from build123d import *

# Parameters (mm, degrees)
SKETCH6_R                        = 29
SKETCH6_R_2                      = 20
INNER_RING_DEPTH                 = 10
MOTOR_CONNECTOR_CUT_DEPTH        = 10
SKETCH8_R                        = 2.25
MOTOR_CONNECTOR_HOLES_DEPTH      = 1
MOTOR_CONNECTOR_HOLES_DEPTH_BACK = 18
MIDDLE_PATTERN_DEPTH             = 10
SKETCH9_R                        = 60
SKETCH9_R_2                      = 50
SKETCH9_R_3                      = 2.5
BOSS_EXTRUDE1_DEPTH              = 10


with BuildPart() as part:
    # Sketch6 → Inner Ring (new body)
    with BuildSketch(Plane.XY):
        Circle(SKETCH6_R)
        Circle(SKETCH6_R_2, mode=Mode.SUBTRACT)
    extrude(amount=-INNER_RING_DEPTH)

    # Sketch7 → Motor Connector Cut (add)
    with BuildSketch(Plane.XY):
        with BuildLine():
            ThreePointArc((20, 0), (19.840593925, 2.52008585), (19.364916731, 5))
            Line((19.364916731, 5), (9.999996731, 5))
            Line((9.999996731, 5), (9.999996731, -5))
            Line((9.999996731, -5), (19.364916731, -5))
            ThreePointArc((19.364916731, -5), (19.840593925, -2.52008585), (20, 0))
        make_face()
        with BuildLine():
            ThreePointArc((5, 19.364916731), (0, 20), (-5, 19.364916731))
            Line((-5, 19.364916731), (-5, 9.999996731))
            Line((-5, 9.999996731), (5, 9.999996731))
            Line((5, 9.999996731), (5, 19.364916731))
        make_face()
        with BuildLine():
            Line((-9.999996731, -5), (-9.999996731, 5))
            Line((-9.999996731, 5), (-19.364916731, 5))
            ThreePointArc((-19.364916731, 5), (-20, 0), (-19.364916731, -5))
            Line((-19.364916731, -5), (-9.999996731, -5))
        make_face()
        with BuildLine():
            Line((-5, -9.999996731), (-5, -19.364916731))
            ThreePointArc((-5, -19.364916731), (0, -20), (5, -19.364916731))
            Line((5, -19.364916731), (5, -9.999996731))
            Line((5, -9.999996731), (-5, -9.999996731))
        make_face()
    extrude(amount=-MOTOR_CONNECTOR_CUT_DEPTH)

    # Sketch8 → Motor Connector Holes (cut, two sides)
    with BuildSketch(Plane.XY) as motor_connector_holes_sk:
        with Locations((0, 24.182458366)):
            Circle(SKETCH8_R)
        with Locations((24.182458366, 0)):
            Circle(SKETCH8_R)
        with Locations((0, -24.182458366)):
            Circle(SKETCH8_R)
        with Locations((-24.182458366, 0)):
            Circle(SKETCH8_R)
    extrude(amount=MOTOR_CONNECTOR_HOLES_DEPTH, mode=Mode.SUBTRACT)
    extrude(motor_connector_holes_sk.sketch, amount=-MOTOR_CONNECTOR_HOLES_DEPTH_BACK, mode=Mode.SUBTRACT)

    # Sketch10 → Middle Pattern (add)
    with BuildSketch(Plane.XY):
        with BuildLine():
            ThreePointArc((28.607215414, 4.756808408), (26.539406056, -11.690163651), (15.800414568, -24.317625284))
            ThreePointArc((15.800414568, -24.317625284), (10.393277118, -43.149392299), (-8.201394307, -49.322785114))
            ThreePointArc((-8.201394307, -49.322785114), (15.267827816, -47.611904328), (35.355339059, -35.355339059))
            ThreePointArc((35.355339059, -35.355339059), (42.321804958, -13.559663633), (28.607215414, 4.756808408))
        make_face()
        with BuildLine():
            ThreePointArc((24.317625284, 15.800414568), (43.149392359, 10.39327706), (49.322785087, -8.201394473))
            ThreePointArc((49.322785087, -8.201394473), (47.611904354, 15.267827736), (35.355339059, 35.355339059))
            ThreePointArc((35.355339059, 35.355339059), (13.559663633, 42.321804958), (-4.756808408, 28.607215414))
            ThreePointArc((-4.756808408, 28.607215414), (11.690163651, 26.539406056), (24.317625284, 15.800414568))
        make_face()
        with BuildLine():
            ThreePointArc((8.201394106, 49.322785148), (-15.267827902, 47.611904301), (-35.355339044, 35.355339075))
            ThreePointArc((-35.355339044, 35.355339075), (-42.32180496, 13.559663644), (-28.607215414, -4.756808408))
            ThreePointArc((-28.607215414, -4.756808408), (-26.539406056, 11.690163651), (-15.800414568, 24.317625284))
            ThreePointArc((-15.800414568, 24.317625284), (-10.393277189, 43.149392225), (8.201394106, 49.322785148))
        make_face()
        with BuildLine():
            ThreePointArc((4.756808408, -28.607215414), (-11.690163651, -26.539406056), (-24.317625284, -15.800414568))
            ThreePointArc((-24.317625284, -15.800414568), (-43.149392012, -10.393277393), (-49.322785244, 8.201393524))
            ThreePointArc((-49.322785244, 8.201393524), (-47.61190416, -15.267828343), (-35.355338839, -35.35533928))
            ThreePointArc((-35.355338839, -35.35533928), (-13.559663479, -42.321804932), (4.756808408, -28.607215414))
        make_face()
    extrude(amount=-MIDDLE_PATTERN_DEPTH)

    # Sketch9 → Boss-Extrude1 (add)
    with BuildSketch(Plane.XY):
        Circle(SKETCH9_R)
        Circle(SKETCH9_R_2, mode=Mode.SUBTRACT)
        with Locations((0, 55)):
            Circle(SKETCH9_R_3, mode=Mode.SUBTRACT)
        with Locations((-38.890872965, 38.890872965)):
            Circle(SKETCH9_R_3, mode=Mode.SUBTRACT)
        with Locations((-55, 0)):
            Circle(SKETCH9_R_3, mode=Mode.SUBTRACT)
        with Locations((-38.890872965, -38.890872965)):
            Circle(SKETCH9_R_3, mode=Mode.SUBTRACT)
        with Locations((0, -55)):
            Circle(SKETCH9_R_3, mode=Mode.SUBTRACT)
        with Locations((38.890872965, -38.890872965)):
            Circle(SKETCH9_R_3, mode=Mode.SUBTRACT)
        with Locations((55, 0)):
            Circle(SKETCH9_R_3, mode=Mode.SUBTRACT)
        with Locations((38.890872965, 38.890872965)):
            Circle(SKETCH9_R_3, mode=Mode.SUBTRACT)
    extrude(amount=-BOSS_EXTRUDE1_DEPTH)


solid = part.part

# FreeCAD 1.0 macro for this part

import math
import FreeCAD as App
import Part
import Sketcher

doc = App.newDocument("Part")
body = doc.addObject("PartDesign::Body", "Body")

# Sketch on XY plane
sketch1 = doc.addObject("Sketcher::SketchObject", "Sketch")
body.addObject(sketch1)
sketch1.AttachmentSupport = (doc.XY_Plane, [""])
sketch1.MapMode = "FlatFace"
sketch1.addGeometry([
    Part.Circle(App.Vector(0, 0, 0), App.Vector(0, 0, 1), 29),
    Part.Circle(App.Vector(0, 0, 0), App.Vector(0, 0, 1), 20),
], False)
sketch1.addConstraint([
    Sketcher.Constraint("Coincident", 0, 3, -1, 1),
    Sketcher.Constraint("Coincident", 1, 3, -1, 1),
    Sketcher.Constraint("Diameter", 0, 58.0),
    Sketcher.Constraint("Diameter", 1, 40.0),
])
pad1 = doc.addObject("PartDesign::Pad", "Pad")
body.addObject(pad1)
pad1.Profile = sketch1
pad1.Length = 10
pad1.Reversed = True

# Sketch on XY plane
sketch2 = doc.addObject("Sketcher::SketchObject", "Sketch001")
body.addObject(sketch2)
sketch2.AttachmentSupport = (doc.XY_Plane, [""])
sketch2.MapMode = "FlatFace"
sketch2.addGeometry([
    Part.ArcOfCircle(Part.Circle(App.Vector(0, 0, 0), App.Vector(0, 0, 1), 20), math.radians(0), math.radians(14.48)),  # 0
    Part.LineSegment(App.Vector(19, 5, 0), App.Vector(10, 5, 0)),  # 1
    Part.LineSegment(App.Vector(10, 5, 0), App.Vector(10, -5, 0)),  # 2
    Part.LineSegment(App.Vector(10, -5, 0), App.Vector(19, -5, 0)),  # 3
    Part.ArcOfCircle(Part.Circle(App.Vector(0, 0, 0), App.Vector(0, 0, 1), 20), math.radians(-14.48), math.radians(0)),  # 4
    Part.ArcOfCircle(Part.Circle(App.Vector(0, 0, 0), App.Vector(0, 0, 1), 20), math.radians(76), math.radians(104)),  # 5
    Part.LineSegment(App.Vector(-5, 19, 0), App.Vector(-5, 10, 0)),  # 6
    Part.LineSegment(App.Vector(-5, 10, 0), App.Vector(5, 10, 0)),  # 7
    Part.LineSegment(App.Vector(5, 10, 0), App.Vector(5, 19, 0)),  # 8
    Part.LineSegment(App.Vector(-10, -5, 0), App.Vector(-10, 5, 0)),  # 9
    Part.LineSegment(App.Vector(-10, 5, 0), App.Vector(-19, 5, 0)),  # 10
    Part.ArcOfCircle(Part.Circle(App.Vector(0, 0, 0), App.Vector(0, 0, 1), 20), math.radians(166), math.radians(194)),  # 11
    Part.LineSegment(App.Vector(-19, -5, 0), App.Vector(-10, -5, 0)),  # 12
    Part.LineSegment(App.Vector(-5, -10, 0), App.Vector(-5, -19, 0)),  # 13
    Part.ArcOfCircle(Part.Circle(App.Vector(0, 0, 0), App.Vector(0, 0, 1), 20), math.radians(-104), math.radians(-76)),  # 14
    Part.LineSegment(App.Vector(5, -19, 0), App.Vector(5, -10, 0)),  # 15
    Part.LineSegment(App.Vector(5, -10, 0), App.Vector(-5, -10, 0)),  # 16
], False)
sketch2.addConstraint([
    Sketcher.Constraint("Coincident", 0, 2, 1, 1),
    Sketcher.Constraint("Coincident", 1, 2, 2, 1),
    Sketcher.Constraint("Coincident", 2, 2, 3, 1),
    Sketcher.Constraint("Coincident", 3, 2, 4, 1),
    Sketcher.Constraint("Tangent", 4, 2, 0, 1),
    Sketcher.Constraint("Coincident", 5, 2, 6, 1),
    Sketcher.Constraint("Coincident", 6, 2, 7, 1),
    Sketcher.Constraint("Coincident", 7, 2, 8, 1),
    Sketcher.Constraint("Coincident", 8, 2, 5, 1),
    Sketcher.Constraint("Coincident", 9, 2, 10, 1),
    Sketcher.Constraint("Coincident", 10, 2, 11, 1),
    Sketcher.Constraint("Coincident", 11, 2, 12, 1),
    Sketcher.Constraint("Coincident", 12, 2, 9, 1),
    Sketcher.Constraint("Coincident", 13, 2, 14, 1),
    Sketcher.Constraint("Coincident", 14, 2, 15, 1),
    Sketcher.Constraint("Coincident", 15, 2, 16, 1),
    Sketcher.Constraint("Coincident", 16, 2, 13, 1),
    Sketcher.Constraint("Horizontal", 1),
    Sketcher.Constraint("Vertical", 2),
    Sketcher.Constraint("Horizontal", 3),
    Sketcher.Constraint("Vertical", 6),
    Sketcher.Constraint("Horizontal", 7),
    Sketcher.Constraint("Vertical", 8),
    Sketcher.Constraint("Vertical", 9),
    Sketcher.Constraint("Horizontal", 10),
    Sketcher.Constraint("Horizontal", 12),
    Sketcher.Constraint("Vertical", 13),
    Sketcher.Constraint("Vertical", 15),
    Sketcher.Constraint("Horizontal", 16),
    Sketcher.Constraint("Coincident", 0, 3, -1, 1),
    Sketcher.Constraint("Coincident", 5, 3, -1, 1),
    Sketcher.Constraint("Coincident", 11, 3, -1, 1),
    Sketcher.Constraint("Coincident", 14, 3, -1, 1),
    Sketcher.Constraint("Equal", 0, 4),
    Sketcher.Constraint("Equal", 4, 5),
    Sketcher.Constraint("Equal", 5, 11),
    Sketcher.Constraint("Equal", 11, 14),
    Sketcher.Constraint("Symmetric", 2, 2, 9, 2, -1, 1),
    Sketcher.Constraint("Symmetric", 6, 2, 15, 2, -1, 1),
    Sketcher.Constraint("PointOnObject", 4, 2, -1),
    Sketcher.Constraint("Horizontal", 5, 2, 8, 2),
    Sketcher.Constraint("Horizontal", 1, 2, 9, 2),
    Sketcher.Constraint("Horizontal", 3, 2, 11, 2),
    Sketcher.Constraint("Horizontal", 13, 2, 14, 2),
    Sketcher.Constraint("Equal", 16, 2),
    Sketcher.Constraint("Equal", 12, 6),
    Sketcher.Constraint("Radius", 0, 20.0),
    Sketcher.Constraint("DistanceX", 7, 1, 7, 2, 10.0),
    Sketcher.Constraint("DistanceX", 1, 2, 1, 1, 9.36492),
])
pad2 = doc.addObject("PartDesign::Pad", "Pad001")
body.addObject(pad2)
pad2.Profile = sketch2
pad2.Length = 10
pad2.Reversed = True

# Sketch on XY plane
sketch3 = doc.addObject("Sketcher::SketchObject", "Sketch002")
body.addObject(sketch3)
sketch3.AttachmentSupport = (doc.XY_Plane, [""])
sketch3.MapMode = "FlatFace"
sketch3.addGeometry([
    Part.Circle(App.Vector(0, 24.2, 0), App.Vector(0, 0, 1), 2.2),
    Part.Circle(App.Vector(24.2, 0, 0), App.Vector(0, 0, 1), 2.2),
    Part.Circle(App.Vector(0, -24.2, 0), App.Vector(0, 0, 1), 2.2),
    Part.Circle(App.Vector(-24.2, 0, 0), App.Vector(0, 0, 1), 2.2),
], False)
sketch3.addConstraint([
    Sketcher.Constraint("Equal", 0, 1),
    Sketcher.Constraint("Equal", 1, 2),
    Sketcher.Constraint("Equal", 2, 3),
    Sketcher.Constraint("Symmetric", 0, 3, 2, 3, -1, 1),
    Sketcher.Constraint("Symmetric", 1, 3, 3, 3, -1, 1),
    Sketcher.Constraint("PointOnObject", 0, 3, -2),
    Sketcher.Constraint("PointOnObject", 1, 3, -1),
    Sketcher.Constraint("Diameter", 0, 4.5),
    Sketcher.Constraint("DistanceY", -1, 1, 0, 3, 24.182458),
    Sketcher.Constraint("DistanceX", -1, 1, 1, 3, 24.182458),
])
pocket1 = doc.addObject("PartDesign::Pocket", "Pocket")
body.addObject(pocket1)
pocket1.Profile = sketch3
pocket1.Type = "ThroughAll"
pocket1.Midplane = True

# Sketch on XY plane
sketch4 = doc.addObject("Sketcher::SketchObject", "Sketch003")
body.addObject(sketch4)
sketch4.AttachmentSupport = (doc.XY_Plane, [""])
sketch4.MapMode = "FlatFace"
sketch4.addGeometry([
    Part.ArcOfCircle(Part.Circle(App.Vector(0, 0, 0), App.Vector(0, 0, 1), 29), math.radians(-57), math.radians(9)),  # 0
    Part.ArcOfCircle(Part.Circle(App.Vector(-5, -29, 0), App.Vector(0, 0, 1), 21), math.radians(-99), math.radians(12)),  # 1
    Part.ArcOfCircle(Part.Circle(App.Vector(0, 0, 0), App.Vector(0, 0, 1), 50), math.radians(-99), math.radians(-45)),  # 2
    Part.ArcOfCircle(Part.Circle(App.Vector(18, -18, 0), App.Vector(0, 0, 1), 25), math.radians(-45), math.radians(64)),  # 3
    Part.ArcOfCircle(Part.Circle(App.Vector(29, -5, 0), App.Vector(0, 0, 1), 21), math.radians(-9), math.radians(102)),  # 4
    Part.ArcOfCircle(Part.Circle(App.Vector(0, 0, 0), App.Vector(0, 0, 1), 50), math.radians(-9), math.radians(45)),  # 5
    Part.ArcOfCircle(Part.Circle(App.Vector(18, 18, 0), App.Vector(0, 0, 1), 25), math.radians(45), math.radians(154)),  # 6
    Part.ArcOfCircle(Part.Circle(App.Vector(0, 0, 0), App.Vector(0, 0, 1), 29), math.radians(33), math.radians(99)),  # 7
    Part.ArcOfCircle(Part.Circle(App.Vector(0, 0, 0), App.Vector(0, 0, 1), 50), math.radians(81), math.radians(135)),  # 8
    Part.ArcOfCircle(Part.Circle(App.Vector(-18, 18, 0), App.Vector(0, 0, 1), 25), math.radians(135), math.radians(244)),  # 9
    Part.ArcOfCircle(Part.Circle(App.Vector(0, 0, 0), App.Vector(0, 0, 1), 29), math.radians(123), math.radians(189)),  # 10
    Part.ArcOfCircle(Part.Circle(App.Vector(5, 29, 0), App.Vector(0, 0, 1), 21), math.radians(81), math.radians(192)),  # 11
    Part.ArcOfCircle(Part.Circle(App.Vector(0, 0, 0), App.Vector(0, 0, 1), 29), math.radians(-147), math.radians(-81)),  # 12
    Part.ArcOfCircle(Part.Circle(App.Vector(-29, 5, 0), App.Vector(0, 0, 1), 21), math.radians(171), math.radians(282)),  # 13
    Part.ArcOfCircle(Part.Circle(App.Vector(0, 0, 0), App.Vector(0, 0, 1), 50), math.radians(171), math.radians(225)),  # 14
    Part.ArcOfCircle(Part.Circle(App.Vector(-18, -18, 0), App.Vector(0, 0, 1), 25), math.radians(-135), math.radians(-26)),  # 15
], False)
sketch4.addConstraint([
    Sketcher.Constraint("Coincident", 0, 1, 1, 2),
    Sketcher.Constraint("Tangent", 1, 1, 2, 1),
    Sketcher.Constraint("Tangent", 2, 2, 3, 1),
    Sketcher.Constraint("Coincident", 3, 2, 0, 2),
    Sketcher.Constraint("Tangent", 4, 1, 5, 1),
    Sketcher.Constraint("Tangent", 5, 2, 6, 1),
    Sketcher.Constraint("Coincident", 6, 2, 7, 2),
    Sketcher.Constraint("Coincident", 7, 1, 4, 2),
    Sketcher.Constraint("Tangent", 8, 2, 9, 1),
    Sketcher.Constraint("Coincident", 9, 2, 10, 2),
    Sketcher.Constraint("Coincident", 10, 1, 11, 2),
    Sketcher.Constraint("Tangent", 11, 1, 8, 1),
    Sketcher.Constraint("Coincident", 12, 1, 13, 2),
    Sketcher.Constraint("Tangent", 13, 1, 14, 1),
    Sketcher.Constraint("Tangent", 14, 2, 15, 1),
    Sketcher.Constraint("Coincident", 15, 2, 12, 2),
    Sketcher.Constraint("Coincident", 0, 3, -1, 1),
    Sketcher.Constraint("Coincident", 2, 3, -1, 1),
    Sketcher.Constraint("Coincident", 5, 3, -1, 1),
    Sketcher.Constraint("Coincident", 7, 3, -1, 1),
    Sketcher.Constraint("Coincident", 8, 3, -1, 1),
    Sketcher.Constraint("Coincident", 10, 3, -1, 1),
    Sketcher.Constraint("Coincident", 12, 3, -1, 1),
    Sketcher.Constraint("Coincident", 14, 3, -1, 1),
    Sketcher.Constraint("Equal", 1, 4),
    Sketcher.Constraint("Equal", 2, 5),
    Sketcher.Constraint("Equal", 3, 6),
    Sketcher.Constraint("Equal", 0, 7),
    Sketcher.Constraint("Equal", 5, 8),
    Sketcher.Constraint("Equal", 6, 9),
    Sketcher.Constraint("Equal", 7, 10),
    Sketcher.Constraint("Equal", 4, 11),
    Sketcher.Constraint("Equal", 10, 12),
    Sketcher.Constraint("Equal", 11, 13),
    Sketcher.Constraint("Equal", 8, 14),
    Sketcher.Constraint("Equal", 9, 15),
    Sketcher.Constraint("Horizontal", 6, 3, 9, 3),
    Sketcher.Constraint("Horizontal", 3, 3, 15, 3),
    Sketcher.Constraint("Horizontal", 13, 3, 3, 2),
    Sketcher.Constraint("Horizontal", 11, 3, 6, 2),
    Sketcher.Constraint("Horizontal", 4, 3, 9, 2),
    Sketcher.Constraint("Horizontal", 1, 3, 15, 2),
    Sketcher.Constraint("Vertical", 3, 3, 6, 3),
    Sketcher.Constraint("Vertical", 4, 3, 3, 2),
    Sketcher.Constraint("Radius", 0, 29.0),
    Sketcher.Constraint("Radius", 1, 21.0),
    Sketcher.Constraint("Radius", 3, 24.966211),
    Sketcher.Constraint("DistanceX", 0, 1, 4, 3, 12.806801),
])
pad3 = doc.addObject("PartDesign::Pad", "Pad002")
body.addObject(pad3)
pad3.Profile = sketch4
pad3.Length = 10
pad3.Reversed = True

# Sketch on XY plane
sketch5 = doc.addObject("Sketcher::SketchObject", "Sketch004")
body.addObject(sketch5)
sketch5.AttachmentSupport = (doc.XY_Plane, [""])
sketch5.MapMode = "FlatFace"
sketch5.addGeometry([
    Part.Circle(App.Vector(0, 0, 0), App.Vector(0, 0, 1), 60),  # 0
    Part.Circle(App.Vector(-38.9, -38.9, 0), App.Vector(0, 0, 1), 2.5),  # 1
    Part.Circle(App.Vector(0, -55, 0), App.Vector(0, 0, 1), 2.5),  # 2
    Part.Circle(App.Vector(38.9, -38.9, 0), App.Vector(0, 0, 1), 2.5),  # 3
    Part.Circle(App.Vector(-55, 0, 0), App.Vector(0, 0, 1), 2.5),  # 4
    Part.Circle(App.Vector(-38.9, 38.9, 0), App.Vector(0, 0, 1), 2.5),  # 5
    Part.Circle(App.Vector(0, 0, 0), App.Vector(0, 0, 1), 50),  # 6
    Part.Circle(App.Vector(55, 0, 0), App.Vector(0, 0, 1), 2.5),  # 7
    Part.Circle(App.Vector(0, 55, 0), App.Vector(0, 0, 1), 2.5),  # 8
    Part.Circle(App.Vector(38.9, 38.9, 0), App.Vector(0, 0, 1), 2.5),  # 9
], False)
sketch5.addConstraint([
    Sketcher.Constraint("Coincident", 0, 3, -1, 1),
    Sketcher.Constraint("Coincident", 6, 3, -1, 1),
    Sketcher.Constraint("Equal", 1, 2),
    Sketcher.Constraint("Equal", 2, 3),
    Sketcher.Constraint("Equal", 3, 4),
    Sketcher.Constraint("Equal", 4, 5),
    Sketcher.Constraint("Equal", 5, 7),
    Sketcher.Constraint("Equal", 7, 8),
    Sketcher.Constraint("Equal", 8, 9),
    Sketcher.Constraint("Symmetric", 3, 3, 5, 3, -1, 1),
    Sketcher.Constraint("Symmetric", 4, 3, 7, 3, -1, 1),
    Sketcher.Constraint("Symmetric", 2, 3, 8, 3, -1, 1),
    Sketcher.Constraint("Symmetric", 1, 3, 9, 3, -1, 1),
    Sketcher.Constraint("Symmetric", 1, 3, 3, 3, -2),
    Sketcher.Constraint("PointOnObject", 2, 3, -2),
    Sketcher.Constraint("PointOnObject", 4, 3, -1),
    Sketcher.Constraint("Diameter", 0, 120.0),
    Sketcher.Constraint("Diameter", 1, 5.0),
    Sketcher.Constraint("Diameter", 6, 100.0),
    Sketcher.Constraint("DistanceY", 2, 3, -1, 1, 55.0),
    Sketcher.Constraint("DistanceX", 4, 3, -1, 1, 55.0),
    Sketcher.Constraint("DistanceX", 1, 3, -1, 1, 38.890873),
    Sketcher.Constraint("DistanceY", 1, 3, -1, 1, 38.890873),
])
pad4 = doc.addObject("PartDesign::Pad", "Pad003")
body.addObject(pad4)
pad4.Profile = sketch5
pad4.Length = 10
pad4.Reversed = True

doc.recompute()
